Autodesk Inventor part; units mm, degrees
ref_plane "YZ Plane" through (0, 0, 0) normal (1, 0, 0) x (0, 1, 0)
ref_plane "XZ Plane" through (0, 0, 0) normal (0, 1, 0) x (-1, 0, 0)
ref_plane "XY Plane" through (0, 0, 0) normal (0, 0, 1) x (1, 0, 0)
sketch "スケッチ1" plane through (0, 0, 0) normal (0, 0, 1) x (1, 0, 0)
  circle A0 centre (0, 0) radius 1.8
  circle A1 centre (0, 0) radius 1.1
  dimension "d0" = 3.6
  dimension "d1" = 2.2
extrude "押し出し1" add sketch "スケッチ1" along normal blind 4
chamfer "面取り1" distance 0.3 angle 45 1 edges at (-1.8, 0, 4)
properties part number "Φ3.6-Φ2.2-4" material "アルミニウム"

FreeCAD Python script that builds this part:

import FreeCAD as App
import Part
import Sketcher
from FreeCAD import Vector


def edges_at(feature, points):
    """Names of the edges that pass closest to the given points."""
    edges = feature.Shape.Edges
    near = lambda p: min(range(len(edges)), key=lambda i: edges[i].distToShape(Part.Vertex(*p))[0])
    return sorted({f"Edge{near(p) + 1}" for p in points})

doc = App.newDocument("Part")
body = doc.addObject("PartDesign::Body", "Body")

sketch1 = body.newObject("Sketcher::SketchObject", "Sketch")
sketch1.AttachmentSupport = (doc.getObject("XY_Plane"), [""])
sketch1.MapMode = "FlatFace"
sketch1.addGeometry(Part.Circle(Vector(0, 0, 0), Vector(0, 0, 1), 1.8), False)
sketch1.addGeometry(Part.Circle(Vector(0, 0, 0), Vector(0, 0, 1), 1.1), False)
sketch1.addConstraint(Sketcher.Constraint("Coincident", 0, 3, -1, 1))
sketch1.addConstraint(Sketcher.Constraint("Coincident", 1, 3, -1, 1))
sketch1.addConstraint(Sketcher.Constraint("Diameter", 0, 3.6))
sketch1.addConstraint(Sketcher.Constraint("Diameter", 1, 2.2))
pad1 = body.newObject("PartDesign::Pad", "Pad")
pad1.Profile = sketch1
pad1.Length = 4
doc.recompute()

chamfer = body.newObject("PartDesign::Chamfer", "Chamfer")
chamfer.Base = (pad1, edges_at(pad1, [(-1.8, 0, 4)]))
chamfer.Size = 0.3

doc.recompute()
